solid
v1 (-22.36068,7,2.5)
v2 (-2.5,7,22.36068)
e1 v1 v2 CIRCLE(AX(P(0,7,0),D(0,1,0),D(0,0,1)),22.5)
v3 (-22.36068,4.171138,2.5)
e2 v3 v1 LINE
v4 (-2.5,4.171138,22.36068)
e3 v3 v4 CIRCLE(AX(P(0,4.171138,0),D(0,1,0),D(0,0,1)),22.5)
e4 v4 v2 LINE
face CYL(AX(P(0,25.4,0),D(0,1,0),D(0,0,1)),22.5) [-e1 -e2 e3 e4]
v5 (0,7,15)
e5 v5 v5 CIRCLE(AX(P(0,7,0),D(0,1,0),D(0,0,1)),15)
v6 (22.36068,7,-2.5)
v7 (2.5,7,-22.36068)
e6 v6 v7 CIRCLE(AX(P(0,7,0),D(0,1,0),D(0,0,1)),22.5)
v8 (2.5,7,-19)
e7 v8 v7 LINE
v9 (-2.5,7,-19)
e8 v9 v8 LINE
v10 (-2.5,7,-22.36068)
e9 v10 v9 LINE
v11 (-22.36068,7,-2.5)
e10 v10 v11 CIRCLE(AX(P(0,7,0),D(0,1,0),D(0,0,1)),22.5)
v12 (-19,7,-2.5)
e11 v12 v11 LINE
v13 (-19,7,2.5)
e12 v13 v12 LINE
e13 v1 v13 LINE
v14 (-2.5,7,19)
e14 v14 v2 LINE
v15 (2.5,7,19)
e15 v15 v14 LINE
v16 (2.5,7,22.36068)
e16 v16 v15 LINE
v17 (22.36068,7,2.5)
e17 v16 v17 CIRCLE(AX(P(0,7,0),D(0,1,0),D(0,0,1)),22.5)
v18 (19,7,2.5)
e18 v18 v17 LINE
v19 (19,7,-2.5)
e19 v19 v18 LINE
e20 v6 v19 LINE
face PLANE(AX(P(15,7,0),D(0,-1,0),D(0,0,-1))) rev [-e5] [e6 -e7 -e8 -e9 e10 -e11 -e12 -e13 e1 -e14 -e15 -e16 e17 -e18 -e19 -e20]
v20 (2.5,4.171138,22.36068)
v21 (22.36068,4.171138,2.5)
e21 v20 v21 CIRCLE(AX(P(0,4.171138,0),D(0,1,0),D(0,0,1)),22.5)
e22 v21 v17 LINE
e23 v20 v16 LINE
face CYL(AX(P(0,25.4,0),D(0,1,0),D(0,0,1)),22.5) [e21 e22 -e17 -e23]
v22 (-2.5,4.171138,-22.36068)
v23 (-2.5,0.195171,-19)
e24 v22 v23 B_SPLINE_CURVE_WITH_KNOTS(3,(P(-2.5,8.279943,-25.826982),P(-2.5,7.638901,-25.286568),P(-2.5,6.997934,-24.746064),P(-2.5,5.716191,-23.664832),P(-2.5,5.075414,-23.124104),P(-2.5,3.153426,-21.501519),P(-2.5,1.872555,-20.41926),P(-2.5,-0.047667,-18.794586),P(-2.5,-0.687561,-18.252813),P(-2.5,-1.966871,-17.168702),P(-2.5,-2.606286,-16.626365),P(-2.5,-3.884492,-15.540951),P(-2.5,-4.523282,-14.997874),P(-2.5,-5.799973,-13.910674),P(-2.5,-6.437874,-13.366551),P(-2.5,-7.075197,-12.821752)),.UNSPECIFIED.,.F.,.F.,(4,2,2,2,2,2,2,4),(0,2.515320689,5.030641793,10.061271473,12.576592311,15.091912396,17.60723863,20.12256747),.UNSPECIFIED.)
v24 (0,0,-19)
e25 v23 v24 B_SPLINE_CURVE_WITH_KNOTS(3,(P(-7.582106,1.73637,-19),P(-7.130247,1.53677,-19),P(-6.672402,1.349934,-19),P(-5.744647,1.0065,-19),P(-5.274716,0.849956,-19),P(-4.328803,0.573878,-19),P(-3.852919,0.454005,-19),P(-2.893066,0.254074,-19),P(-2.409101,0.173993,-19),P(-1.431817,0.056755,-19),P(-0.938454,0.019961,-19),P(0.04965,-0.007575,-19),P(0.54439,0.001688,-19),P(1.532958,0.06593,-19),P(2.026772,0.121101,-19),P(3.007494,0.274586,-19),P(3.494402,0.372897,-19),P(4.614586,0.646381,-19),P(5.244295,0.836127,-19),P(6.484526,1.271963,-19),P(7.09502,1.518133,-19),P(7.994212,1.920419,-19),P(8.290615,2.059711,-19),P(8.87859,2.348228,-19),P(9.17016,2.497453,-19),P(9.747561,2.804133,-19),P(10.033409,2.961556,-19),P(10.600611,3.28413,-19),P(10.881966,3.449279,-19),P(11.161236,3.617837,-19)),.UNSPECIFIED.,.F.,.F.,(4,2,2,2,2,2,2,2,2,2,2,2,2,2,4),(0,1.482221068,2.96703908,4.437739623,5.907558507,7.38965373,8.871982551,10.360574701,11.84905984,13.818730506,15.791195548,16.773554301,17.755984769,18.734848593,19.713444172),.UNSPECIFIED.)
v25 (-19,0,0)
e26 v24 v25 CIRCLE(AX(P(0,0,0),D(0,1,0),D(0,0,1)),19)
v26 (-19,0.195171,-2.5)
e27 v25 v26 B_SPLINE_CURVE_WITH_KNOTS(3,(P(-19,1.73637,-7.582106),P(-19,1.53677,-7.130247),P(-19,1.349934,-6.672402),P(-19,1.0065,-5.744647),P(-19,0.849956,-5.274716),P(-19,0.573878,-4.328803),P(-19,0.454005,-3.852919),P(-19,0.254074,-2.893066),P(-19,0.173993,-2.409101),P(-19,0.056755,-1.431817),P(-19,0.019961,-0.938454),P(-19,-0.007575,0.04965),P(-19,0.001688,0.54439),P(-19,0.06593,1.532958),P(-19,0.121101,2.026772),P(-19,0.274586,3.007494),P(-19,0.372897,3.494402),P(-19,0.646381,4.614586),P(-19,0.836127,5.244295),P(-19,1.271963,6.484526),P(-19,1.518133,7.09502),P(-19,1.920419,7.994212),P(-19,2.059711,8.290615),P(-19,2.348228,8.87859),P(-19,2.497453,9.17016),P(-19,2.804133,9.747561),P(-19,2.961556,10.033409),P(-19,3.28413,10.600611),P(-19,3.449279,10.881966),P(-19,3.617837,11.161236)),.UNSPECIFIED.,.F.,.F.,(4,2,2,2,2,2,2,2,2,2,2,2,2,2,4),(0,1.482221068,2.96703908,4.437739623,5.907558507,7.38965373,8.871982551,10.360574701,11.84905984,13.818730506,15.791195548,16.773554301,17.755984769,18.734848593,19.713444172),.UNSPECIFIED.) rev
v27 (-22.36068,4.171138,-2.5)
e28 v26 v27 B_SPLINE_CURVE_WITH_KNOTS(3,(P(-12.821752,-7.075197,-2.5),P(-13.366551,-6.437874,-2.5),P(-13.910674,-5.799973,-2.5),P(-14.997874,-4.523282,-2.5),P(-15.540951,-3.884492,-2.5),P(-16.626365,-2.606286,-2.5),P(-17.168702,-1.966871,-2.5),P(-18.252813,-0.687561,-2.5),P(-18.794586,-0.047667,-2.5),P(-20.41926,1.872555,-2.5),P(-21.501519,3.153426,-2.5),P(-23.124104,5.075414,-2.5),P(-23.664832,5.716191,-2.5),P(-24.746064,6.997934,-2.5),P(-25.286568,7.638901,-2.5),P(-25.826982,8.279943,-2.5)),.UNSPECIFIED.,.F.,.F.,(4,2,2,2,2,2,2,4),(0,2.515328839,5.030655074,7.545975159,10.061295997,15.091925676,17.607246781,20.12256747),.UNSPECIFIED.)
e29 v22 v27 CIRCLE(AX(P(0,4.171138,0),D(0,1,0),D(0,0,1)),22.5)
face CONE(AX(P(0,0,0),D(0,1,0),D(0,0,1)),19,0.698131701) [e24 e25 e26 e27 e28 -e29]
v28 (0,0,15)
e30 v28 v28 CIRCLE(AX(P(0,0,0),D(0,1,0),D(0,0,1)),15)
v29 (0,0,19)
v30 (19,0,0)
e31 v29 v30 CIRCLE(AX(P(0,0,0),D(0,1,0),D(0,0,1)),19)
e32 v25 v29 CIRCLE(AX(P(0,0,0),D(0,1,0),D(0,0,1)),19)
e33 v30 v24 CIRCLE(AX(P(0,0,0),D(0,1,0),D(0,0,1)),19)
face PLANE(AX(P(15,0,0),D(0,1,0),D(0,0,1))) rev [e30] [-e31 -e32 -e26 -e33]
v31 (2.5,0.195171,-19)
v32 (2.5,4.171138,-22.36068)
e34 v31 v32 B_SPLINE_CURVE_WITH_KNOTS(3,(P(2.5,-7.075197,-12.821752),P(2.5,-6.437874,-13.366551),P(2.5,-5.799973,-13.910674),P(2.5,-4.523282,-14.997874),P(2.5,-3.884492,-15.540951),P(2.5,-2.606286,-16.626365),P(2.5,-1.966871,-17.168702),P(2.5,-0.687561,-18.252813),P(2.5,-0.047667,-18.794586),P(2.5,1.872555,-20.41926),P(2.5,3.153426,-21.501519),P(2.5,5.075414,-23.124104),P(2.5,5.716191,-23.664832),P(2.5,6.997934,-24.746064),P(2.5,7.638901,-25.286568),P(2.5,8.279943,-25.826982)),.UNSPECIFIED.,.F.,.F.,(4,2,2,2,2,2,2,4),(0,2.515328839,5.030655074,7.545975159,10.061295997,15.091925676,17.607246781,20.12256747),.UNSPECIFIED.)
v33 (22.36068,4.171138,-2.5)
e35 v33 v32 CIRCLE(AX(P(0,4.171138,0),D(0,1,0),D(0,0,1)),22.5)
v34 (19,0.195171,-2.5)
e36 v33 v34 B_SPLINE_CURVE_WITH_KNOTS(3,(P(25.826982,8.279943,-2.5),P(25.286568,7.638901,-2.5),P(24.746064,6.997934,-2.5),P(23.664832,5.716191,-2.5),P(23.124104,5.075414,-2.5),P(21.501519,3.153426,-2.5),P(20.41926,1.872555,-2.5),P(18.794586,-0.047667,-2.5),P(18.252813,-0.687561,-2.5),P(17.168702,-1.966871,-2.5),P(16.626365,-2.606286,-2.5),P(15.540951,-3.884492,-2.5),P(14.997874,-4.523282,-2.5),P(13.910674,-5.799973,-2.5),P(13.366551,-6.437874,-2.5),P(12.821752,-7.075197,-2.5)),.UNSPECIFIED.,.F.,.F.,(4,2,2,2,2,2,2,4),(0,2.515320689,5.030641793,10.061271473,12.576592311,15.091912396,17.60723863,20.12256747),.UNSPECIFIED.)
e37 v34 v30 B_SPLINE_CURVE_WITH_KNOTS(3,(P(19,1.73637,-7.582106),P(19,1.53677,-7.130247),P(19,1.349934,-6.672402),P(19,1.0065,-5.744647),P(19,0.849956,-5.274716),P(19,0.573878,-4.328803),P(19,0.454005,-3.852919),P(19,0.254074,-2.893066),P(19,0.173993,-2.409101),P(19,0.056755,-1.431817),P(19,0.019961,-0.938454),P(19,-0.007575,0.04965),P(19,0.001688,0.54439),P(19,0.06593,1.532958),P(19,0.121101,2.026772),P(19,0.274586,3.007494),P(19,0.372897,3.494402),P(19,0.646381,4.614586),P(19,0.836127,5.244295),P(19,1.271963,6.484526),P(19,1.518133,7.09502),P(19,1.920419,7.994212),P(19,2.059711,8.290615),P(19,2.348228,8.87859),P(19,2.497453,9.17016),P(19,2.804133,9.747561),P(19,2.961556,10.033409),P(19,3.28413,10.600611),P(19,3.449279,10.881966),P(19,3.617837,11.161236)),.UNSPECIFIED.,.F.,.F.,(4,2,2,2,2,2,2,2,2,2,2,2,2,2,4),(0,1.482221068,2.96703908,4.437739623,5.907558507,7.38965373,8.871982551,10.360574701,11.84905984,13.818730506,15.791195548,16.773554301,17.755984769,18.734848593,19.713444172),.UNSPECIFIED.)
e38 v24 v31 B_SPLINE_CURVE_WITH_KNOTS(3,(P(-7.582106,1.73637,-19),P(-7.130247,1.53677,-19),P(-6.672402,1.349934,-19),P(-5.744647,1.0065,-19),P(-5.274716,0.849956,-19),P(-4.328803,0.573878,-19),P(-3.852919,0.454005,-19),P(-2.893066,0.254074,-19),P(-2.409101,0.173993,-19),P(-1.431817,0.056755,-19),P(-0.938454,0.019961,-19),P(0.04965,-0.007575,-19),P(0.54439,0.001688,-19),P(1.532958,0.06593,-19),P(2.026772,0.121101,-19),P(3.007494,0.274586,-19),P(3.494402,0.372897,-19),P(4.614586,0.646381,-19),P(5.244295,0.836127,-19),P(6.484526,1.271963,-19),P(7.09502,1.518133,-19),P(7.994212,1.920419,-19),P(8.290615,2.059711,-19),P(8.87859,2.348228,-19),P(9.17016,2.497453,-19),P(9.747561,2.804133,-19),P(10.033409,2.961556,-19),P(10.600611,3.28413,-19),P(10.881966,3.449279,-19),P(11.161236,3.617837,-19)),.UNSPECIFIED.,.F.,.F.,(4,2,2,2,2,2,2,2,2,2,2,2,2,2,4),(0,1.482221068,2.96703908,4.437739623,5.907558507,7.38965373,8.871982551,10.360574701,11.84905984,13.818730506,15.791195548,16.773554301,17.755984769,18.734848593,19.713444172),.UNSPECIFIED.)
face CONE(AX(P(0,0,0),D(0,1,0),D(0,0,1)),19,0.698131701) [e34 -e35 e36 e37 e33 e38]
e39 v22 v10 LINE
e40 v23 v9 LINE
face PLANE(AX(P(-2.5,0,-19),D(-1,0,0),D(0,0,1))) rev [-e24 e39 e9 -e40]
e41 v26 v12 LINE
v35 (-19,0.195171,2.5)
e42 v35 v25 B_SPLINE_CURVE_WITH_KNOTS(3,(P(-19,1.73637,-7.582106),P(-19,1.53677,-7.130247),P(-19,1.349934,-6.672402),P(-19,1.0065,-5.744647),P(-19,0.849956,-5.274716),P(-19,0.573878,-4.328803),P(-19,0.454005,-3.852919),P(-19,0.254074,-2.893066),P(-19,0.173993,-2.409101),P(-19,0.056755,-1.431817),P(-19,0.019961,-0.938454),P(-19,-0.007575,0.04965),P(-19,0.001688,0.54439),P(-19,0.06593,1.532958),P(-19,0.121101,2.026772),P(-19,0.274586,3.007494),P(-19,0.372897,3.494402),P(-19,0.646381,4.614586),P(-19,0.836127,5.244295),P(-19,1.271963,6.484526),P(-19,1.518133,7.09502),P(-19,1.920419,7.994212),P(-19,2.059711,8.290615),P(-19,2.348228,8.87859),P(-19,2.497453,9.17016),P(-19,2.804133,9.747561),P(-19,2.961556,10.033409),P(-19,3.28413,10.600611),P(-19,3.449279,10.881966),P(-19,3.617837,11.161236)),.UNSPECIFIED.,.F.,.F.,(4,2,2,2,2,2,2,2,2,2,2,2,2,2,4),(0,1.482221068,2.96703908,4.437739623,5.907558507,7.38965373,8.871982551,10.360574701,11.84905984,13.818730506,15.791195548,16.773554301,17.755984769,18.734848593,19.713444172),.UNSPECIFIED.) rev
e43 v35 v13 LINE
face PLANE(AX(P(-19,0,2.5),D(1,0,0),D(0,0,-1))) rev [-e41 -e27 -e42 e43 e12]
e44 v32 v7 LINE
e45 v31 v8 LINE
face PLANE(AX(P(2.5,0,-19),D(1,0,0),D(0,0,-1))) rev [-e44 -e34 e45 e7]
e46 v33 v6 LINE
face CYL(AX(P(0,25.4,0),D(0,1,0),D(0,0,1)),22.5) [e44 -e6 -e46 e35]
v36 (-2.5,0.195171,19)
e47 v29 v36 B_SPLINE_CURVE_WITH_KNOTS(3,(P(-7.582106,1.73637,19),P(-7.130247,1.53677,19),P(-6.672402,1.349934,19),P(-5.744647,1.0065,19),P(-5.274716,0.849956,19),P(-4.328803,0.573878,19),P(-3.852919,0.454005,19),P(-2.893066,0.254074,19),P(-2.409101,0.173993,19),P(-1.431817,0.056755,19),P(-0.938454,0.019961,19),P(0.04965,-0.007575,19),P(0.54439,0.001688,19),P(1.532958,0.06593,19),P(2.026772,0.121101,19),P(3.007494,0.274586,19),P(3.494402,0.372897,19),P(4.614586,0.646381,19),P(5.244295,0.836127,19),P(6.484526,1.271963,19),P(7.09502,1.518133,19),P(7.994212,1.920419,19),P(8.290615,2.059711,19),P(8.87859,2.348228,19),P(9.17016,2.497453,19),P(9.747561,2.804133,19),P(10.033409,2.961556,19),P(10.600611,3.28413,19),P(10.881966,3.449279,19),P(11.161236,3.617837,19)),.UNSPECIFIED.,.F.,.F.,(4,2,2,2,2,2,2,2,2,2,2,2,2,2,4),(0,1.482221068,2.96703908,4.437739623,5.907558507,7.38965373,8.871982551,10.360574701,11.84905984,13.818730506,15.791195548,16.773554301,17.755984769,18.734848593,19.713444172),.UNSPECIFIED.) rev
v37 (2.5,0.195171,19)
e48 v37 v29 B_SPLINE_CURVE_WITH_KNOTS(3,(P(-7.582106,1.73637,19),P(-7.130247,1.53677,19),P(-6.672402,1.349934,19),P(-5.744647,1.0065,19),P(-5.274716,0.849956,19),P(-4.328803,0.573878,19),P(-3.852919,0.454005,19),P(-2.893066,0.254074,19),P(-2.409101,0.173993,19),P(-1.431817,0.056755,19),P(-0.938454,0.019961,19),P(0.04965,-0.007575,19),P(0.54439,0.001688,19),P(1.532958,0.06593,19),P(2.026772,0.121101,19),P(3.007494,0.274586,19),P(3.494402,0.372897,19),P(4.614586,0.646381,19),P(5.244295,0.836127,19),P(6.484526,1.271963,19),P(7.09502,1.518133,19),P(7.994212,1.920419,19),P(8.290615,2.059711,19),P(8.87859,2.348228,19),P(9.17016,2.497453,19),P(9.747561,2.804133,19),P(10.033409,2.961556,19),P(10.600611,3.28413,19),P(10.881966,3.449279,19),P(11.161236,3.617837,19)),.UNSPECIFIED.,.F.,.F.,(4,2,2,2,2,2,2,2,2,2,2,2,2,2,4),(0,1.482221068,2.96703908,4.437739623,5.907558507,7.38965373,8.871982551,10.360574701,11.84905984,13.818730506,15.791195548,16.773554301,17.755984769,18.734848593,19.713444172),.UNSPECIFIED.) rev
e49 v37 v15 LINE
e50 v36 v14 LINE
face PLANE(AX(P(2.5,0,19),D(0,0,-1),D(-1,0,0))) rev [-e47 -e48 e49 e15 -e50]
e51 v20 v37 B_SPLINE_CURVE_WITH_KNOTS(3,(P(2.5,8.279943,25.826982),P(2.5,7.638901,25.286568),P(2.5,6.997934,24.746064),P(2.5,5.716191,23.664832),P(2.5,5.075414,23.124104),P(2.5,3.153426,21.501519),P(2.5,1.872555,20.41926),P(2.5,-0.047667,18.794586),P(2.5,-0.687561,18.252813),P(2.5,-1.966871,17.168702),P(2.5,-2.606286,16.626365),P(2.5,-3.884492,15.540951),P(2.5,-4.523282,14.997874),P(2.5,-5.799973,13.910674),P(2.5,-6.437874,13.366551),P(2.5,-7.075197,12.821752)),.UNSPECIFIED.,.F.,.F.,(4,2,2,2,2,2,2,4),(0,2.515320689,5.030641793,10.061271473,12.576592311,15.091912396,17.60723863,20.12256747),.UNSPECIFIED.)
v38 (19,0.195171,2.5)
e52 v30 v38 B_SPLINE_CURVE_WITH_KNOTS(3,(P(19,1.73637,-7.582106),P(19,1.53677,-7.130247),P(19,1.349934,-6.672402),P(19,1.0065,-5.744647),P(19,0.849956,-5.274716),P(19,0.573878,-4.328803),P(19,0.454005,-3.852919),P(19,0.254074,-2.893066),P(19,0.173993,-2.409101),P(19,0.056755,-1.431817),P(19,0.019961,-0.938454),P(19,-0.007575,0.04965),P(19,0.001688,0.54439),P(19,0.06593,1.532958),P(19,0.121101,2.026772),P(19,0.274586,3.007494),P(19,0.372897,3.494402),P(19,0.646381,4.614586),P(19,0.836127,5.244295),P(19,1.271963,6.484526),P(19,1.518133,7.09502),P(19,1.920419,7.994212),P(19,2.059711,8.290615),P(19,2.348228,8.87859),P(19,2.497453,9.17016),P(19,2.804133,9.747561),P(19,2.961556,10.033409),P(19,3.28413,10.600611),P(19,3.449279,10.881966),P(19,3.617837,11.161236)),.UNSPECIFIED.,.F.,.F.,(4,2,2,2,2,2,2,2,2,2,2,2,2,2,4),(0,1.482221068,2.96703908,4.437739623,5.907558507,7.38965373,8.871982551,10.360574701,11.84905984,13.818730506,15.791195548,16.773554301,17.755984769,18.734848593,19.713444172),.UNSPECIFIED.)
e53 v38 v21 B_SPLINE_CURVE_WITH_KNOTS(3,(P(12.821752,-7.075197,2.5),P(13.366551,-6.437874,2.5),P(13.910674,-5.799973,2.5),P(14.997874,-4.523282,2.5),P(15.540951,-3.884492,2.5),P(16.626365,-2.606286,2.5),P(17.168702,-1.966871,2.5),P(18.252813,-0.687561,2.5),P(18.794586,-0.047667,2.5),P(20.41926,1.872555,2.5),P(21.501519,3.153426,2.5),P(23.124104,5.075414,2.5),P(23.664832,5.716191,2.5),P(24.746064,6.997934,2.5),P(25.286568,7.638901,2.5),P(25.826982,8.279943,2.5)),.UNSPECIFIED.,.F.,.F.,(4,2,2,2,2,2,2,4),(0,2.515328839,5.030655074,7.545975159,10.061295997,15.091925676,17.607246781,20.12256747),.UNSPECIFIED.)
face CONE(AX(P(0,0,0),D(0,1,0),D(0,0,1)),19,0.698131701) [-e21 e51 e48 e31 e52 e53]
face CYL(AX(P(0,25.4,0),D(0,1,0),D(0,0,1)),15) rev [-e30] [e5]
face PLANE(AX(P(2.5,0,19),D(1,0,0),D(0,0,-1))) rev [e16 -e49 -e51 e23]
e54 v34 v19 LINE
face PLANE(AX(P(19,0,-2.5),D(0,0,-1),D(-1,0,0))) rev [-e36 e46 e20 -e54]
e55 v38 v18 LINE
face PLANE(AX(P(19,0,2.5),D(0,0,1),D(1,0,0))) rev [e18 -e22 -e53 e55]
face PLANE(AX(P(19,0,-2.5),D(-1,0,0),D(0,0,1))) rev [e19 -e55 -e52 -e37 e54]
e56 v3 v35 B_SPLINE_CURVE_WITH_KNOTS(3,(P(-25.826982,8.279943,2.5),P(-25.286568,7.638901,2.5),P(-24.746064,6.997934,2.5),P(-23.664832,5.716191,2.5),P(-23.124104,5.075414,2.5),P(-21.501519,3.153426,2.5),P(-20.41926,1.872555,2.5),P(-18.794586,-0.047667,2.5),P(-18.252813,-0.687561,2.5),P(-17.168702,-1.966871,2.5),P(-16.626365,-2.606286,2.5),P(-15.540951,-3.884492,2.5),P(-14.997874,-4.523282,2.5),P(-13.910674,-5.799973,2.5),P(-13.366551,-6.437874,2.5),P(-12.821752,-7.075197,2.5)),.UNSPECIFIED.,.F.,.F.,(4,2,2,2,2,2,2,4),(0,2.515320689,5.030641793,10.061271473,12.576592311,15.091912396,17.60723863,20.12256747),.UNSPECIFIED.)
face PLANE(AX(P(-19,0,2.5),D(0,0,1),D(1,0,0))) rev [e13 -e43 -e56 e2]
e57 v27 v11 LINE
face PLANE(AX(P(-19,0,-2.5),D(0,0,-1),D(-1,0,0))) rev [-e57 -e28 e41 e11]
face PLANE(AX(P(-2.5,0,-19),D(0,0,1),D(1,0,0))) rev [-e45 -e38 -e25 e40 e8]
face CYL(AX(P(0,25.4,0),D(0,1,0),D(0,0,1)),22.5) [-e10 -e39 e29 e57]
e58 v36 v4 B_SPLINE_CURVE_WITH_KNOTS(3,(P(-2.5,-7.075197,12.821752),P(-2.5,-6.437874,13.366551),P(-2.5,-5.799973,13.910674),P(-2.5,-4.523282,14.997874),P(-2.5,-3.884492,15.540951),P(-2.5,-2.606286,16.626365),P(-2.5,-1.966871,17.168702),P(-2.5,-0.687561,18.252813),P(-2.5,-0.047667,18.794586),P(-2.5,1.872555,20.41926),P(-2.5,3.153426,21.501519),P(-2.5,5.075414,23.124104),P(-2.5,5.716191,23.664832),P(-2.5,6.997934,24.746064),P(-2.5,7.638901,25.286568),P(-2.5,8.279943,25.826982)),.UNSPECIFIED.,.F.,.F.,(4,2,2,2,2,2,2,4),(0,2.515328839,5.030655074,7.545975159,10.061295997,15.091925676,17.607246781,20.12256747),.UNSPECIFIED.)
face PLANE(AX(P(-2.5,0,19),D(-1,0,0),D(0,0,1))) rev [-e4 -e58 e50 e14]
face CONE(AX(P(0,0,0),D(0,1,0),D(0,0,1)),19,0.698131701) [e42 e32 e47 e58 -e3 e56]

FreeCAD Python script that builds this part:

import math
import FreeCAD as App
import Part
import Sketcher
from FreeCAD import Vector
Q = App.Units.Quantity

doc = App.newDocument("Part")
body = doc.addObject("PartDesign::Body", "Body")

# Sketch on XY plane
sketch1 = body.newObject("Sketcher::SketchObject", "Sketch")
sketch1.AttachmentSupport = (doc.getObject("XY_Plane"), [""])
sketch1.MapMode = "FlatFace"
sketch1.addGeometry(Part.LineSegment(Vector(15, 7, 0), Vector(15, 0, 0)), False)
sketch1.addGeometry(Part.LineSegment(Vector(15, 0, 0), Vector(19, 0, 0)), False)
sketch1.addGeometry(Part.LineSegment(Vector(19, 0, 0), Vector(22.5, 4.171138, 0)), False)
sketch1.addGeometry(Part.LineSegment(Vector(22.5, 4.171138, 0), Vector(22.5, 7, 0)), False)
sketch1.addGeometry(Part.LineSegment(Vector(22.5, 7, 0), Vector(15, 7, 0)), False)
sketch1.addConstraint(Sketcher.Constraint("Coincident", 0, 2, 1, 1))
sketch1.addConstraint(Sketcher.Constraint("Coincident", 1, 2, 2, 1))
sketch1.addConstraint(Sketcher.Constraint("Coincident", 2, 2, 3, 1))
sketch1.addConstraint(Sketcher.Constraint("Coincident", 3, 2, 4, 1))
sketch1.addConstraint(Sketcher.Constraint("Coincident", 4, 2, 0, 1))
sketch1.addConstraint(Sketcher.Constraint("Vertical", 0))
sketch1.addConstraint(Sketcher.Constraint("Horizontal", 1))
sketch1.addConstraint(Sketcher.Constraint("Vertical", 3))
sketch1.addConstraint(Sketcher.Constraint("Horizontal", 4))
sketch1.addConstraint(Sketcher.Constraint("PointOnObject", 0, 2, -1))
sketch1.addConstraint(Sketcher.Constraint("DistanceX", 1, 1, 1, 2, 4.0))
sketch1.addConstraint(Sketcher.Constraint("DistanceY", 0, 2, 0, 1, 7.0))
sketch1.addConstraint(Sketcher.Constraint("Angle", 2, Q("50 deg")))
sketch1.addConstraint(Sketcher.Constraint("DistanceX", 4, 2, 4, 1, 7.5))
sketch1.addConstraint(Sketcher.Constraint("DistanceX", -1, 1, 0, 2, 15.0))
revolution = body.newObject("PartDesign::Revolution", "Revolution")
revolution.Profile = sketch1
revolution.ReferenceAxis = (sketch1, ["V_Axis"])
revolution.Angle = 360

# Sketch on XZ plane
sketch2 = body.newObject("Sketcher::SketchObject", "Sketch001")
sketch2.AttachmentSupport = (doc.getObject("XZ_Plane"), [""])
sketch2.MapMode = "FlatFace"
sketch2.AttachmentOffset = App.Placement(Vector(0, 0, -7), App.Rotation())
sketch2.addGeometry(Part.LineSegment(Vector(-2.5, -19, 0), Vector(2.5, -19, 0)), False)
sketch2.addGeometry(Part.LineSegment(Vector(2.5, -19, 0), Vector(2.5, -22.36068, 0)), False)
sketch2.addGeometry(Part.ArcOfCircle(Part.Circle(Vector(0, 0, 0), Vector(0, 0, 1), 22.5), math.radians(-96.37937), math.radians(-83.62063)), False)
sketch2.addGeometry(Part.LineSegment(Vector(-2.5, -22.36068, 0), Vector(-2.5, -19, 0)), False)
sketch2.addConstraint(Sketcher.Constraint("Coincident", 0, 2, 1, 1))
sketch2.addConstraint(Sketcher.Constraint("Coincident", 1, 2, 2, 2))
sketch2.addConstraint(Sketcher.Constraint("Coincident", 2, 1, 3, 1))
sketch2.addConstraint(Sketcher.Constraint("Coincident", 3, 2, 0, 1))
sketch2.addConstraint(Sketcher.Constraint("Horizontal", 0))
sketch2.addConstraint(Sketcher.Constraint("Vertical", 1))
sketch2.addConstraint(Sketcher.Constraint("Vertical", 3))
sketch2.addConstraint(Sketcher.Constraint("Coincident", 2, 3, -1, 1))
sketch2.addConstraint(Sketcher.Constraint("Horizontal", 1, 2, 2, 1))
sketch2.addConstraint(Sketcher.Constraint("Radius", 2, 22.5))
sketch2.addConstraint(Sketcher.Constraint("DistanceX", 0, 1, 0, 2, 5.0))
sketch2.addConstraint(Sketcher.Constraint("DistanceY", 0, 2, -1, 1, 19.0))
pocket1 = body.newObject("PartDesign::Pocket", "Pocket")
pocket1.Profile = sketch2
pocket1.Type = "ThroughAll"
pocket1.Reversed = True
doc.recompute()

polarpattern = body.newObject("PartDesign::PolarPattern", "PolarPattern")
polarpattern.Originals = [pocket1]
polarpattern.Axis = (doc.getObject("Y_Axis"), [""])
polarpattern.Angle = 360
polarpattern.Occurrences = 4
body.Tip = polarpattern

doc.recompute()
